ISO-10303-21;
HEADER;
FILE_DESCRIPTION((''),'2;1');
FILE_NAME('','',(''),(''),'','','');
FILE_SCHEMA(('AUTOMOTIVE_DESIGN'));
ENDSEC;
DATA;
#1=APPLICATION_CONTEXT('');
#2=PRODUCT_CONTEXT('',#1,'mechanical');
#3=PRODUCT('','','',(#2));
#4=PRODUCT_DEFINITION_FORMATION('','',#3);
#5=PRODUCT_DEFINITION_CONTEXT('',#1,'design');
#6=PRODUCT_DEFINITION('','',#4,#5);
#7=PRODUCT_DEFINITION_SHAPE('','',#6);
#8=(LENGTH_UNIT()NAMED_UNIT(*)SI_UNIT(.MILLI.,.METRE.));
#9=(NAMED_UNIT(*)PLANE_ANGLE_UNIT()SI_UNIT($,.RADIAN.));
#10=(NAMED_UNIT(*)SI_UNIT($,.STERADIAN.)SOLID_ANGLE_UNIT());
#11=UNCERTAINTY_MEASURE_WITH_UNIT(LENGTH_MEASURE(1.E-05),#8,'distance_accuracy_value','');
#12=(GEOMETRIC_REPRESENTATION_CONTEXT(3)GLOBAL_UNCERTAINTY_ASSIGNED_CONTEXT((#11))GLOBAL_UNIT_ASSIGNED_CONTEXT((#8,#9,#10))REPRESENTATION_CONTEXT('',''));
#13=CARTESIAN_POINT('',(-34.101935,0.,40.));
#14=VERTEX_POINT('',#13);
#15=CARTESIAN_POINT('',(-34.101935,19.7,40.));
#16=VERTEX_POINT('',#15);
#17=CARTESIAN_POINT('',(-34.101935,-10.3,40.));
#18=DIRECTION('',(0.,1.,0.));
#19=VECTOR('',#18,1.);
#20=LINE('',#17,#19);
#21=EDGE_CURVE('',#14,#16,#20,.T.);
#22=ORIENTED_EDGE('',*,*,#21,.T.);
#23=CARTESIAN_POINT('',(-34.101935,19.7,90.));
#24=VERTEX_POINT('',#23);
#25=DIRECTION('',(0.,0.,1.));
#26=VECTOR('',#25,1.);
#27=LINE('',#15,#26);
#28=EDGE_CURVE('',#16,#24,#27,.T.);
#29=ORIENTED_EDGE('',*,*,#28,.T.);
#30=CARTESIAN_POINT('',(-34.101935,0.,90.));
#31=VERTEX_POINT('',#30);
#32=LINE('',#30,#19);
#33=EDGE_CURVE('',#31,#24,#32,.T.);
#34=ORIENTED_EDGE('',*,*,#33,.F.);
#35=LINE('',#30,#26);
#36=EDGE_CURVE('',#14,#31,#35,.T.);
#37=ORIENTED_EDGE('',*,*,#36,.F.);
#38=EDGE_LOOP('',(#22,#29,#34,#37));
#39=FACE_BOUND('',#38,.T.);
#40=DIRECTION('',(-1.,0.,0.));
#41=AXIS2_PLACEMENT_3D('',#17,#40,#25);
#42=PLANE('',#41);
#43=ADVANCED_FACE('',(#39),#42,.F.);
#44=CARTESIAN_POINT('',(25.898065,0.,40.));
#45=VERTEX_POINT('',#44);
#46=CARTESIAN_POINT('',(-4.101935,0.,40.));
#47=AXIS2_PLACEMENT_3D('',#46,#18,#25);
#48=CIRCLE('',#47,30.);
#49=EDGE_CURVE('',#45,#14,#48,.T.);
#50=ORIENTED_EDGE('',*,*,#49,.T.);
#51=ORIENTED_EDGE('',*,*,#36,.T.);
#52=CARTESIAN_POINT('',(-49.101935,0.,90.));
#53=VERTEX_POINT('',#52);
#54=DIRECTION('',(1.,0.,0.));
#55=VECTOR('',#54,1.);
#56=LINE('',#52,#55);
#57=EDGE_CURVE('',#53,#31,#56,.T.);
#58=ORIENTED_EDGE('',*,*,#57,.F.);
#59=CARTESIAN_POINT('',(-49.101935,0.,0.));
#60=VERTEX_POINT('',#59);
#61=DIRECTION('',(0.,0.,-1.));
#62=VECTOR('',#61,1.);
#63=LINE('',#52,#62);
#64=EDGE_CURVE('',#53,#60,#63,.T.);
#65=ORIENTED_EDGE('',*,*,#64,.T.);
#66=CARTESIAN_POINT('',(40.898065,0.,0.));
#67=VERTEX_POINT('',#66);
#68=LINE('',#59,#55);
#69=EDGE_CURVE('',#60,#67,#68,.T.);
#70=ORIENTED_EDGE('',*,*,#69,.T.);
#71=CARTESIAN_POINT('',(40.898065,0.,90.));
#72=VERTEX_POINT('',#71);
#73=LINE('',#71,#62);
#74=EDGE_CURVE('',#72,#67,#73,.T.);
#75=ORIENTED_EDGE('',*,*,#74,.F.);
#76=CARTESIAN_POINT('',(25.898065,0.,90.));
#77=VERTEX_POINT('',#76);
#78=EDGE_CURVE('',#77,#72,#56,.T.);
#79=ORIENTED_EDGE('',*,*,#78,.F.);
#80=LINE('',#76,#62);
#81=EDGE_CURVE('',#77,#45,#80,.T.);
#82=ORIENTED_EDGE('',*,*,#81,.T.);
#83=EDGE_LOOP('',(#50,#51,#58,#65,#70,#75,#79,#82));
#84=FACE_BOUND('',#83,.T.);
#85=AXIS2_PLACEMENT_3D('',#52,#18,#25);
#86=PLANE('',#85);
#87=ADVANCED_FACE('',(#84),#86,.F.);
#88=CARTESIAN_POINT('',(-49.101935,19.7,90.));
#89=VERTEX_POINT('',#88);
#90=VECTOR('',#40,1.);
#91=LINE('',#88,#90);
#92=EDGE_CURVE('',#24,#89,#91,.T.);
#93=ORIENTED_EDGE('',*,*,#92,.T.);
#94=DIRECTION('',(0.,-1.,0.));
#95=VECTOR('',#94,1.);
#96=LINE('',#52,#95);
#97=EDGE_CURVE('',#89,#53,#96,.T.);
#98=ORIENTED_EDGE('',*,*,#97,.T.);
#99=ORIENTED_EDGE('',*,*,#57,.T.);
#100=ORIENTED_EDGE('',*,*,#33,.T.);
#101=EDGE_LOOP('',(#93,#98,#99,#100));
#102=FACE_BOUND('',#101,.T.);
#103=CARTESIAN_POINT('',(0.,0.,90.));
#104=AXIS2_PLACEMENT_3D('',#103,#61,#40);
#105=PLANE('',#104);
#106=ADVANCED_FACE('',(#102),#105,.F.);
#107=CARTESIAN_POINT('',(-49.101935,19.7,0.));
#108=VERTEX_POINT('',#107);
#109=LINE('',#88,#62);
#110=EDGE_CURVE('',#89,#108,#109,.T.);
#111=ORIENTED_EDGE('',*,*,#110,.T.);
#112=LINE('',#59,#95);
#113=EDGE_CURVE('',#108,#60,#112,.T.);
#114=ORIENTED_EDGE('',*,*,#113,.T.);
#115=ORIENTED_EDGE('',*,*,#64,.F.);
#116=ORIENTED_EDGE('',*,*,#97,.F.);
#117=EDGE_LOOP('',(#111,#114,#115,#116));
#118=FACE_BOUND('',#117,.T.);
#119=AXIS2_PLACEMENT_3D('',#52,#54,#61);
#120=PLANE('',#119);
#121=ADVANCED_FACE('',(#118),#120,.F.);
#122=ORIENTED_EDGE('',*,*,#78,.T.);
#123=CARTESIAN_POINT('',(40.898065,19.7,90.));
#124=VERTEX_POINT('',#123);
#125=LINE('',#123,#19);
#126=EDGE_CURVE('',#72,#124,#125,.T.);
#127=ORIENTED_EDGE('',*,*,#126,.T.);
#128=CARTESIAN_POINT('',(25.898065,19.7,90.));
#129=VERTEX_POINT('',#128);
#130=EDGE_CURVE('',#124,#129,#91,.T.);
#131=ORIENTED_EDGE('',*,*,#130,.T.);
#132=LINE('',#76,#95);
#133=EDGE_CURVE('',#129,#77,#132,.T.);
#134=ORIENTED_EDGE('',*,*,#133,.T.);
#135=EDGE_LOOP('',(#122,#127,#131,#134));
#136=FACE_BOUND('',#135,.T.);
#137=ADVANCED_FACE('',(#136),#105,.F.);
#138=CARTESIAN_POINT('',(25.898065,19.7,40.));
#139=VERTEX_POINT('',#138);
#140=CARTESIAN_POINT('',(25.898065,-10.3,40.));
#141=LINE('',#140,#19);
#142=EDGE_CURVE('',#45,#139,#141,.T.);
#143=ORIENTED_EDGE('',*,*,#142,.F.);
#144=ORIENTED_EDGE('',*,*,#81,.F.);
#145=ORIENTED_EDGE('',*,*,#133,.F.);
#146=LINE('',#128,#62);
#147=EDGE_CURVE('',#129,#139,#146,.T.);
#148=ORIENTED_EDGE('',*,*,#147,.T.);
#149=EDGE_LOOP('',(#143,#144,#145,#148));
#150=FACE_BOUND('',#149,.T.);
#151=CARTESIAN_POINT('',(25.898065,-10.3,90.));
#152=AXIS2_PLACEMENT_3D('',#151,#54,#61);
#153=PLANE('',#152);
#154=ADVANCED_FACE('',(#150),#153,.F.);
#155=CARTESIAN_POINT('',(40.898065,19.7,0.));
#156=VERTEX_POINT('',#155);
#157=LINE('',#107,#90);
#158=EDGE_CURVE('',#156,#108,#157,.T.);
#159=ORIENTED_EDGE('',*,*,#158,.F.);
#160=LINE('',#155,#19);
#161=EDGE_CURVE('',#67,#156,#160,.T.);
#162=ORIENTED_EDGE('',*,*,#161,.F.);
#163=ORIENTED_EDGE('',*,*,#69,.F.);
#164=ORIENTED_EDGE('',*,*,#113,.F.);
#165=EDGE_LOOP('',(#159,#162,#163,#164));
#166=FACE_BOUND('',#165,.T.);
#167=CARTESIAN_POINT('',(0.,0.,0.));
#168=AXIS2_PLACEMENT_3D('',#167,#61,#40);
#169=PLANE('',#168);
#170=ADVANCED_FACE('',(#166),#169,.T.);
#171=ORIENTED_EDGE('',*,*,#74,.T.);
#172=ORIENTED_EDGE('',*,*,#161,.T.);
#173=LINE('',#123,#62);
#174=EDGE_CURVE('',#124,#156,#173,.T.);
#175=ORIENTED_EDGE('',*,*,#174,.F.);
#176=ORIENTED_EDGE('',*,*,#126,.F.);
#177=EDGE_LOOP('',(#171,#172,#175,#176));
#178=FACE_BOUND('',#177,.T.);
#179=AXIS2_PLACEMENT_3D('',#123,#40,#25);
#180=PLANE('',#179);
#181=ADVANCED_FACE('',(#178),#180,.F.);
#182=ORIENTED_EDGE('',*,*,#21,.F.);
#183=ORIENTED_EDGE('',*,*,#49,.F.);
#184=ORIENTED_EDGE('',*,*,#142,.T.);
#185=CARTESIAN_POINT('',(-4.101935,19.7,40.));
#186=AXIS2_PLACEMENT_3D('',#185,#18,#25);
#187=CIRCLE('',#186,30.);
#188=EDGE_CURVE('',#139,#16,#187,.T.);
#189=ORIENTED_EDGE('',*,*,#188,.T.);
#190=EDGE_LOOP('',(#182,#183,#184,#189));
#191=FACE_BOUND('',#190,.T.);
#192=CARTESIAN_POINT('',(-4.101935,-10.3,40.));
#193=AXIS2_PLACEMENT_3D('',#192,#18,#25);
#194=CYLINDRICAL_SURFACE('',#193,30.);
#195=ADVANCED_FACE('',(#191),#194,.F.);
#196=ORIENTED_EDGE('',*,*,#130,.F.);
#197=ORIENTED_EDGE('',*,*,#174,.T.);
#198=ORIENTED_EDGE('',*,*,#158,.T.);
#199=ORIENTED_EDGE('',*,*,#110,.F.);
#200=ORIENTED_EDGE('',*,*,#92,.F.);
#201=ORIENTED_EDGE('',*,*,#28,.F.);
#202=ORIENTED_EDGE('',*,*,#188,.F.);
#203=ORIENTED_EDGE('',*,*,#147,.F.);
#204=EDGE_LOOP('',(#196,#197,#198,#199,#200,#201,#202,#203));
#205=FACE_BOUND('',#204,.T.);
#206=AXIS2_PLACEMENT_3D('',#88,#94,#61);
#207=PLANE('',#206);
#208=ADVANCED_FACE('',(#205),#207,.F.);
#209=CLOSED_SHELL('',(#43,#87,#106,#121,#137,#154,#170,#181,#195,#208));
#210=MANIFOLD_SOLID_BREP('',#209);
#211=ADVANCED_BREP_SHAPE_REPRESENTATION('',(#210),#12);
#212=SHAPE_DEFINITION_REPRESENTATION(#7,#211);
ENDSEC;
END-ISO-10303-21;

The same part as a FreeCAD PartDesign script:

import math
import FreeCAD as App
import Part
import Sketcher
Q = App.Units.Quantity

doc = App.newDocument("Part")
body = doc.addObject("PartDesign::Body", "Body")

sketch1 = body.newObject("Sketcher::SketchObject", "Sketch")
sketch1.AttachmentSupport = (doc.getObject("XY_Plane"), [""])
sketch1.MapMode = "FlatFace"
sketch1.addGeometry(Part.LineSegment(App.Vector(-49.101935, 19.7, 0), App.Vector(-49.101935, 0, 0)), False)
sketch1.addGeometry(Part.LineSegment(App.Vector(-49.101935, 0, 0), App.Vector(40.898065, 0, 0)), False)
sketch1.addGeometry(Part.LineSegment(App.Vector(40.898065, 0, 0), App.Vector(40.898065, 19.7, 0)), False)
sketch1.addGeometry(Part.LineSegment(App.Vector(40.898065, 19.7, 0), App.Vector(-49.101935, 19.7, 0)), False)
sketch1.addConstraint(Sketcher.Constraint("Coincident", 0, 2, 1, 1))
sketch1.addConstraint(Sketcher.Constraint("Coincident", 1, 2, 2, 1))
sketch1.addConstraint(Sketcher.Constraint("Coincident", 2, 2, 3, 1))
sketch1.addConstraint(Sketcher.Constraint("Coincident", 3, 2, 0, 1))
sketch1.addConstraint(Sketcher.Constraint("Vertical", 0))
sketch1.addConstraint(Sketcher.Constraint("Horizontal", 1))
sketch1.addConstraint(Sketcher.Constraint("Vertical", 2))
sketch1.addConstraint(Sketcher.Constraint("Horizontal", 3))
sketch1.addConstraint(Sketcher.Constraint("PointOnObject", 0, 2, -1))
sketch1.addConstraint(Sketcher.Constraint("DistanceX", 1, 1, 1, 2, Q("90 mm")))
sketch1.addConstraint(Sketcher.Constraint("DistanceY", 0, 2, 0, 1, Q("19.7 mm")))
sketch1.addConstraint(Sketcher.Constraint("DistanceX", 0, 2, -1, 1, Q("49.101935 mm")))
pad1 = body.newObject("PartDesign::Pad", "Pad")
pad1.Profile = sketch1
pad1.Length = 90

sketch2 = body.newObject("Sketcher::SketchObject", "Sketch001")
sketch2.AttachmentSupport = (doc.getObject("XZ_Plane"), [""])
sketch2.MapMode = "FlatFace"
sketch2.AttachmentOffset = App.Placement(App.Vector(0, 0, -19.7), App.Rotation())
sketch2.addGeometry(Part.LineSegment(App.Vector(-34.101935, 40, 0), App.Vector(-34.101935, 90, 0)), False)
sketch2.addGeometry(Part.LineSegment(App.Vector(-34.101935, 90, 0), App.Vector(25.898065, 90, 0)), False)
sketch2.addGeometry(Part.LineSegment(App.Vector(25.898065, 90, 0), App.Vector(25.898065, 40, 0)), False)
sketch2.addGeometry(Part.ArcOfCircle(Part.Circle(App.Vector(-4.101935, 40, 0), App.Vector(0, 0, 1), 30), math.radians(180), math.radians(360)), False)
sketch2.addConstraint(Sketcher.Constraint("Coincident", 0, 2, 1, 1))
sketch2.addConstraint(Sketcher.Constraint("Coincident", 1, 2, 2, 1))
sketch2.addConstraint(Sketcher.Constraint("Tangent", 2, 2, 3, 2))
sketch2.addConstraint(Sketcher.Constraint("Tangent", 3, 1, 0, 1))
sketch2.addConstraint(Sketcher.Constraint("Vertical", 0))
sketch2.addConstraint(Sketcher.Constraint("Horizontal", 1))
sketch2.addConstraint(Sketcher.Constraint("Vertical", 2))
sketch2.addConstraint(Sketcher.Constraint("Radius", 3, Q("30 mm")))
sketch2.addConstraint(Sketcher.Constraint("DistanceY", 0, 1, 0, 2, Q("50 mm")))
sketch2.addConstraint(Sketcher.Constraint("DistanceY", -1, 1, 3, 3, Q("40 mm")))
sketch2.addConstraint(Sketcher.Constraint("DistanceX", 3, 3, -1, 1, Q("4.101935 mm")))
pocket1 = body.newObject("PartDesign::Pocket", "Pocket")
pocket1.Profile = sketch2
pocket1.Length = 30
pocket1.Reversed = True

doc.recompute()
